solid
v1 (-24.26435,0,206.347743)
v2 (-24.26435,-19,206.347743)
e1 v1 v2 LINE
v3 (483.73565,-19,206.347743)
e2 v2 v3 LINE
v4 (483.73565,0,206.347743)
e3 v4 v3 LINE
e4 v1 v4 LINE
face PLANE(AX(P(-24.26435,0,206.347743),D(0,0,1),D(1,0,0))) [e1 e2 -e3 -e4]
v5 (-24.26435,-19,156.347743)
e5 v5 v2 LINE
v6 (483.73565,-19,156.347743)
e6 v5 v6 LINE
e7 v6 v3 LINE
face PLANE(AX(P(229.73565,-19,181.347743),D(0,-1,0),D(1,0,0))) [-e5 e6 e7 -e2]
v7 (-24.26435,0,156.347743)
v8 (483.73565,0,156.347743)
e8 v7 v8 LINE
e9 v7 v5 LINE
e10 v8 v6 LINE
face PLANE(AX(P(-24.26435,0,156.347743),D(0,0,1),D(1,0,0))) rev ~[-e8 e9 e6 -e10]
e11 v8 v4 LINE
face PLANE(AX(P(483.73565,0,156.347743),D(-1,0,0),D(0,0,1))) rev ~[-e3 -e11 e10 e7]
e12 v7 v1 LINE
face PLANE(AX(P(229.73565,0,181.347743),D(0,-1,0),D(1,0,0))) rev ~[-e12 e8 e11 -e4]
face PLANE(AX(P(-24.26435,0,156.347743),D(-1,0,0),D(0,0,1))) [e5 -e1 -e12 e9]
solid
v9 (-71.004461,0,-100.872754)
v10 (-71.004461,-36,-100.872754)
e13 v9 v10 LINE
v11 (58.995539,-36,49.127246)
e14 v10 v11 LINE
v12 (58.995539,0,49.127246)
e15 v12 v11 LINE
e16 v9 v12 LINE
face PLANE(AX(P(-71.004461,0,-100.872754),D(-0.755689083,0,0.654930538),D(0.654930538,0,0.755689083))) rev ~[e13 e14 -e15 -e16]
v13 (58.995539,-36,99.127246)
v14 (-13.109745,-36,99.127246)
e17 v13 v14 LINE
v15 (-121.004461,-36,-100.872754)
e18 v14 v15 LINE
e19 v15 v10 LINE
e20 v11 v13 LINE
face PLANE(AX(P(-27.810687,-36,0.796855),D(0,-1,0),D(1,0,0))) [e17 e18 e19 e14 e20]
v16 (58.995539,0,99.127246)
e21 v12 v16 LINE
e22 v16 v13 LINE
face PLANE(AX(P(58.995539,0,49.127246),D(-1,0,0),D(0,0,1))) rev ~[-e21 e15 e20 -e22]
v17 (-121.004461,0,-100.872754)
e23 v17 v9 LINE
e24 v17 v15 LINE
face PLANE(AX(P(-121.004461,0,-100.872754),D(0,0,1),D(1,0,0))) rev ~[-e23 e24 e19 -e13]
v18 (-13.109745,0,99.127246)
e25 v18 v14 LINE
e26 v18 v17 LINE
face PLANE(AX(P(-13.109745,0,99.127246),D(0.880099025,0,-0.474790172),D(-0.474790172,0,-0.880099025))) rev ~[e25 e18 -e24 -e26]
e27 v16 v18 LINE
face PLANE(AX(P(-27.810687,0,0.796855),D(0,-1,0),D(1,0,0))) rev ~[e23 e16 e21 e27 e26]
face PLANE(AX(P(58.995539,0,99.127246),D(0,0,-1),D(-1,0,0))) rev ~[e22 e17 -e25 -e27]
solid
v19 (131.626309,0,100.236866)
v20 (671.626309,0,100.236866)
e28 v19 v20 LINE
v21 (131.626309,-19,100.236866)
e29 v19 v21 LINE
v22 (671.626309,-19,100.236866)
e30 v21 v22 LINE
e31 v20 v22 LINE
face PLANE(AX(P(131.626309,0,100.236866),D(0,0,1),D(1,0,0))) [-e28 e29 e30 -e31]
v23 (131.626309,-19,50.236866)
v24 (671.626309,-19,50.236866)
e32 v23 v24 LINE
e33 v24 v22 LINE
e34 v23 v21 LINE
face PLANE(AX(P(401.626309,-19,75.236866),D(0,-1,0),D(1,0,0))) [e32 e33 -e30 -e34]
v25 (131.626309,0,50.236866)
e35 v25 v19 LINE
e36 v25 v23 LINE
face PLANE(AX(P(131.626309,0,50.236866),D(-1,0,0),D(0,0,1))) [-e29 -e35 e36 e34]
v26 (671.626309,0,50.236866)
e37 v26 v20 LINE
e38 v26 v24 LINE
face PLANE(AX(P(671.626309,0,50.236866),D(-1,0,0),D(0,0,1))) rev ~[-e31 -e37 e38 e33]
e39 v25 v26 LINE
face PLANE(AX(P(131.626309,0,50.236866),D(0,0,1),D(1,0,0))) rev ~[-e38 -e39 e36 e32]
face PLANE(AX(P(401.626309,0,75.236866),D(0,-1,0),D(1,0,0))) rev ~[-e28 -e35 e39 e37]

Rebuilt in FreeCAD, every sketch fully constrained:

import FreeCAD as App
import Part
import Sketcher

V = App.Vector
Q = App.Units.Quantity


def add_polygon(sketch, points):
    """Adds a closed chain of lines whose ends are joined by coincident constraints."""
    first, n = sketch.GeometryCount, len(points)
    for a, b in zip(points, points[1:] + points[:1]):
        sketch.addGeometry(Part.LineSegment(App.Vector(*a, 0), App.Vector(*b, 0)), False)
    for i in range(n):
        sketch.addConstraint(Sketcher.Constraint("Coincident", first + i, 2, first + (i + 1) % n, 1))

doc = App.newDocument("Part")
body = doc.addObject("PartDesign::Body", "Body")

sketch1 = body.newObject("Sketcher::SketchObject", "Sketch")
sketch1.AttachmentSupport = (doc.getObject("XZ_Plane"), [""])
sketch1.MapMode = "FlatFace"
add_polygon(sketch1, [(58.995539, 99.127246), (-13.109745, 99.127246), (-121.004461, -100.872754), (-71.004461, -100.872754), (58.995539, 49.127246)])
sketch1.addConstraint(Sketcher.Constraint("Horizontal", 0))
sketch1.addConstraint(Sketcher.Constraint("Horizontal", 2))
sketch1.addConstraint(Sketcher.Constraint("Vertical", 4))
sketch1.addConstraint(Sketcher.Constraint("Equal", 2, 4))
sketch1.addConstraint(Sketcher.Constraint("DistanceX", 2, 1, 2, 2, Q("50 mm")))
sketch1.addConstraint(Sketcher.Constraint("DistanceY", 1, 2, 0, 2, Q("200 mm")))
sketch1.addConstraint(Sketcher.Constraint("DistanceX", 2, 2, 3, 2, Q("130 mm")))
sketch1.addConstraint(Sketcher.Constraint("DistanceX", 0, 2, 0, 1, Q("72.105284 mm")))
sketch1.addConstraint(Sketcher.Constraint("DistanceX", 1, 2, -1, 1, Q("121.004461 mm")))
sketch1.addConstraint(Sketcher.Constraint("DistanceY", -1, 1, 0, 2, Q("99.127246 mm")))
pad1 = body.newObject("PartDesign::Pad", "Pad")
pad1.Profile = sketch1
pad1.Length = 36
body2 = doc.addObject("PartDesign::Body", "Body001")

sketch2 = body2.newObject("Sketcher::SketchObject", "Sketch001")
sketch2.AttachmentSupport = (doc.getObject("XZ_Plane001"), [""])
sketch2.MapMode = "FlatFace"
add_polygon(sketch2, [(131.626309, 100.236866), (131.626309, 50.236866), (671.626309, 50.236866), (671.626309, 100.236866)])
sketch2.addConstraint(Sketcher.Constraint("Vertical", 0))
sketch2.addConstraint(Sketcher.Constraint("Horizontal", 1))
sketch2.addConstraint(Sketcher.Constraint("Vertical", 2))
sketch2.addConstraint(Sketcher.Constraint("Horizontal", 3))
sketch2.addConstraint(Sketcher.Constraint("DistanceX", 1, 1, 1, 2, Q("540 mm")))
sketch2.addConstraint(Sketcher.Constraint("DistanceY", 0, 2, 0, 1, Q("50 mm")))
sketch2.addConstraint(Sketcher.Constraint("DistanceX", -1, 1, 0, 2, Q("131.626309 mm")))
sketch2.addConstraint(Sketcher.Constraint("DistanceY", -1, 1, 0, 2, Q("50.236866 mm")))
pad2 = body2.newObject("PartDesign::Pad", "Pad001")
pad2.Profile = sketch2
pad2.Length = 19
body3 = doc.addObject("PartDesign::Body", "Body002")

sketch3 = body3.newObject("Sketcher::SketchObject", "Sketch002")
sketch3.AttachmentSupport = (doc.getObject("XZ_Plane002"), [""])
sketch3.MapMode = "FlatFace"
add_polygon(sketch3, [(-24.26435, 206.347743), (-24.26435, 156.347743), (483.73565, 156.347743), (483.73565, 206.347743)])
sketch3.addConstraint(Sketcher.Constraint("Vertical", 0))
sketch3.addConstraint(Sketcher.Constraint("Horizontal", 1))
sketch3.addConstraint(Sketcher.Constraint("Vertical", 2))
sketch3.addConstraint(Sketcher.Constraint("Horizontal", 3))
sketch3.addConstraint(Sketcher.Constraint("DistanceX", 1, 1, 1, 2, Q("508 mm")))
sketch3.addConstraint(Sketcher.Constraint("DistanceY", 0, 2, 0, 1, Q("50 mm")))
sketch3.addConstraint(Sketcher.Constraint("DistanceX", 0, 2, -1, 1, Q("24.26435 mm")))
sketch3.addConstraint(Sketcher.Constraint("DistanceY", -1, 1, 0, 2, Q("156.347743 mm")))
pad3 = body3.newObject("PartDesign::Pad", "Pad002")
pad3.Profile = sketch3
pad3.Length = 19

doc.recompute()
